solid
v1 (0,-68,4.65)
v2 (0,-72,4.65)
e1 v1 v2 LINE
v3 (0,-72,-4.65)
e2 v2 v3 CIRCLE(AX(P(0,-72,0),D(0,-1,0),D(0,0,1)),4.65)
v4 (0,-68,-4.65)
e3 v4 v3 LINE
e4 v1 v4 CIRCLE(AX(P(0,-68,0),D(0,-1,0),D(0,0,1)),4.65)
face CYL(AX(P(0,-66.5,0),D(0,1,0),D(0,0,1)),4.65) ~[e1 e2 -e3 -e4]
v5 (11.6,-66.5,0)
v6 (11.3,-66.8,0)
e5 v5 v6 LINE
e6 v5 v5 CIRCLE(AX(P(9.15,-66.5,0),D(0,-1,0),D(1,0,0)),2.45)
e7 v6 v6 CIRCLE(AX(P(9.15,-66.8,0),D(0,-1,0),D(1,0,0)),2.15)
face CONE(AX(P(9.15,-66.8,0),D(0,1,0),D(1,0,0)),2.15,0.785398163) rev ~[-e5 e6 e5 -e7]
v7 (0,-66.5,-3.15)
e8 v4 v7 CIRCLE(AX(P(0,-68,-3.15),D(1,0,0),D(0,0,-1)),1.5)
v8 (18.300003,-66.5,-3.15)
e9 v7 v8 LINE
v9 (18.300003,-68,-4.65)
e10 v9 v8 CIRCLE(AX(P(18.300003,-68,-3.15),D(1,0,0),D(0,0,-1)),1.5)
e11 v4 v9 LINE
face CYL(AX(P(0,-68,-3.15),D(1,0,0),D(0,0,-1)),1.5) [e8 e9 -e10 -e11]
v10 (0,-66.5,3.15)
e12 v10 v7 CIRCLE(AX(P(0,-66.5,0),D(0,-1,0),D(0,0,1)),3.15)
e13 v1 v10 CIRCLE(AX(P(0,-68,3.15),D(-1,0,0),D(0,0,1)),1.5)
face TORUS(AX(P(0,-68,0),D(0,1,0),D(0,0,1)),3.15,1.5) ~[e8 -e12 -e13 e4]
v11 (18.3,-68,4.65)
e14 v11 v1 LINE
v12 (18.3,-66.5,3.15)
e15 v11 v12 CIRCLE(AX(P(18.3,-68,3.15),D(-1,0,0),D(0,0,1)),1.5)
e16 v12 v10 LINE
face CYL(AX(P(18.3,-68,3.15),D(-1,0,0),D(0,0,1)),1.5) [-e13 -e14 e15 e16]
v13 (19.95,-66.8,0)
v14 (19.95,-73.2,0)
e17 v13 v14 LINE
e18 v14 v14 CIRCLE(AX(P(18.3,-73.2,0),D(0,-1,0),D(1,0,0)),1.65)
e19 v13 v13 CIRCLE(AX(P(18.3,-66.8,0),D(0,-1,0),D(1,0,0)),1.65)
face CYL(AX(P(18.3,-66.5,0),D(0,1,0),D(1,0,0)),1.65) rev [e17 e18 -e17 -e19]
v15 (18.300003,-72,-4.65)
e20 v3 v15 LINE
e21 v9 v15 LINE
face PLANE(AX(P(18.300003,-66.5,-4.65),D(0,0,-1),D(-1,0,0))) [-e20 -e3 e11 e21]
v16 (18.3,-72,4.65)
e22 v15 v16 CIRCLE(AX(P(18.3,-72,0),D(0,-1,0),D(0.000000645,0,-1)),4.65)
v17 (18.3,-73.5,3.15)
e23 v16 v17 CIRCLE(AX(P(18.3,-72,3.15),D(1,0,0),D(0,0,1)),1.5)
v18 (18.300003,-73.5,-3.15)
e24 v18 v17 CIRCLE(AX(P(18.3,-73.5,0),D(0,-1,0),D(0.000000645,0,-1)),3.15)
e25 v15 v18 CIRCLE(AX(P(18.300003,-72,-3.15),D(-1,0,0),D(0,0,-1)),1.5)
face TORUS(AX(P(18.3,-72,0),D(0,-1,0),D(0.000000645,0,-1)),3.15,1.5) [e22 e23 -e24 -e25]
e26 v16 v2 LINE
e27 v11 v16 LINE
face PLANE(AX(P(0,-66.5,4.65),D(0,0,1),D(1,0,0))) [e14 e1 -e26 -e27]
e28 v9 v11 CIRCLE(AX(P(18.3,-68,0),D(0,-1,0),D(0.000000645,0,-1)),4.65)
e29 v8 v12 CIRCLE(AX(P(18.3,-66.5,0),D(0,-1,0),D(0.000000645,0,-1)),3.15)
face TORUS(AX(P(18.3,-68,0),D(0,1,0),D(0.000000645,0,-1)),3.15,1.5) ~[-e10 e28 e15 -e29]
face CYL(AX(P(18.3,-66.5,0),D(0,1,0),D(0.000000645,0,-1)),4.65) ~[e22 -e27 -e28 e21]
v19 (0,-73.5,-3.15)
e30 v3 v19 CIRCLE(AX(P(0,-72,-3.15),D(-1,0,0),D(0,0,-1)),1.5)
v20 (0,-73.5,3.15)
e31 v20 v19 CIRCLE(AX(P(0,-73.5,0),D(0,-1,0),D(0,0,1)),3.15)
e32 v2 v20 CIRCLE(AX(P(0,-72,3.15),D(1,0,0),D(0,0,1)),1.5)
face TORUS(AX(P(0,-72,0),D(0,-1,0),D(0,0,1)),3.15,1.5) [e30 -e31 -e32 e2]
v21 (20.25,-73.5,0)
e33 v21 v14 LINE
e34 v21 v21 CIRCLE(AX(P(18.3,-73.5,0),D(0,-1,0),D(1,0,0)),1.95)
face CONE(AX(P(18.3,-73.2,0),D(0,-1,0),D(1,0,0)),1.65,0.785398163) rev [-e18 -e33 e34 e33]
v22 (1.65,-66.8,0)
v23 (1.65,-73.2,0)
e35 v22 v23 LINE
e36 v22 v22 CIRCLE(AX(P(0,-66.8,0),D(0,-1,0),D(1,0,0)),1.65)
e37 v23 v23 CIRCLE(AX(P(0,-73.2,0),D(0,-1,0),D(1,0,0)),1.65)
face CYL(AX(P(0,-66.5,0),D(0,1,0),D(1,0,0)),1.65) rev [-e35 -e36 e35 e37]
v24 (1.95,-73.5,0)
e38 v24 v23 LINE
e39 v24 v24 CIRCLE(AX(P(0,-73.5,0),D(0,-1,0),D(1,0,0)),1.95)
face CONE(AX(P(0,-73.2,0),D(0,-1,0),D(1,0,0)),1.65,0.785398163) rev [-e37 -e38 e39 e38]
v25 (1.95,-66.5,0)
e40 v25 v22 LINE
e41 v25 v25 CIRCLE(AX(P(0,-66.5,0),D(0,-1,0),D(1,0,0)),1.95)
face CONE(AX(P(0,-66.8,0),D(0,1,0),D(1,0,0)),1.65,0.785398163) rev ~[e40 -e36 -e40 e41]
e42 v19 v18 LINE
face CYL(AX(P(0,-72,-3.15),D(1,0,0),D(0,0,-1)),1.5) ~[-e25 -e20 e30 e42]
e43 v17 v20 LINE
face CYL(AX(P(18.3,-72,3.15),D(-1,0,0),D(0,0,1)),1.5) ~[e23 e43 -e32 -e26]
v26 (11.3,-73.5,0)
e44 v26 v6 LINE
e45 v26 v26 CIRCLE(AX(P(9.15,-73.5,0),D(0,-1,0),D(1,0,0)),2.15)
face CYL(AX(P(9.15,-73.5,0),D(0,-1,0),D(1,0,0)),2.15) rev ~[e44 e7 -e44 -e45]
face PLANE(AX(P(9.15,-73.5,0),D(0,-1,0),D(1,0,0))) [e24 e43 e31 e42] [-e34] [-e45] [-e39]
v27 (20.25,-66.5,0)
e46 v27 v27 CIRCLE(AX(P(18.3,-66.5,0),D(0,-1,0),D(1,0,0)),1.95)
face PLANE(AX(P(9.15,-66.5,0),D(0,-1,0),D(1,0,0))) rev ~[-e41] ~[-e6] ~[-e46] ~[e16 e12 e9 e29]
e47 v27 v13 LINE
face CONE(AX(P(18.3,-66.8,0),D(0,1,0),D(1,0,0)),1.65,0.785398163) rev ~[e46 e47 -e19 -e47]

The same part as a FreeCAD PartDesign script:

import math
import FreeCAD as App
import Part
import Sketcher

V = App.Vector
Q = App.Units.Quantity


def edges_at(feature, points):
    """Names of the edges that pass closest to the given points."""
    edges = feature.Shape.Edges
    near = lambda p: min(range(len(edges)), key=lambda i: edges[i].distToShape(Part.Vertex(*p))[0])
    return sorted({f"Edge{near(p) + 1}" for p in points})

doc = App.newDocument("Part")
body = doc.addObject("PartDesign::Body", "Body")

# Sketch on XZ plane
sketch1 = body.newObject("Sketcher::SketchObject", "Sketch")
sketch1.AttachmentSupport = (doc.getObject("XZ_Plane"), [""])
sketch1.MapMode = "FlatFace"
sketch1.addGeometry([
    Part.ArcOfCircle(Part.Circle(V(0, 0, 0), V(0, 0, 1), 4.7), math.radians(90), math.radians(270)),  # 0
    Part.LineSegment(V(0, -4.7, 0), V(18.3, -4.7, 0)),  # 1
    Part.ArcOfCircle(Part.Circle(V(18.3, 0, 0), V(0, 0, 1), 4.7), math.radians(-90), math.radians(90)),  # 2
    Part.LineSegment(V(18.3, 4.7, 0), V(0, 4.7, 0)),  # 3
    Part.Circle(V(0, 0, 0), V(0, 0, 1), 1.6),  # 4
    Part.Circle(V(18.3, 0, 0), V(0, 0, 1), 1.6),  # 5
], False)
sketch1.addConstraint([
    Sketcher.Constraint("Tangent", 0, 2, 1, 1),
    Sketcher.Constraint("Tangent", 1, 2, 2, 1),
    Sketcher.Constraint("Tangent", 2, 2, 3, 1),
    Sketcher.Constraint("Tangent", 3, 2, 0, 1),
    Sketcher.Constraint("Horizontal", 1),
    Sketcher.Constraint("Horizontal", 3),
    Sketcher.Constraint("Coincident", 0, 3, -1, 1),
    Sketcher.Constraint("Coincident", 4, 3, -1, 1),
    Sketcher.Constraint("Coincident", 5, 3, 2, 3),
    Sketcher.Constraint("Equal", 4, 5),
    Sketcher.Constraint("Diameter", 4, Q("3.3 mm")),
    Sketcher.Constraint("Radius", 0, Q("4.65 mm")),
    Sketcher.Constraint("DistanceX", 3, 2, 3, 1, Q("18.3 mm")),
])
pad1 = body.newObject("PartDesign::Pad", "Pad")
pad1.Profile = sketch1
pad1.Length = 7

# Sketch on XZ plane
sketch2 = body.newObject("Sketcher::SketchObject", "Sketch001")
sketch2.AttachmentSupport = (doc.getObject("XZ_Plane"), [""])
sketch2.MapMode = "FlatFace"
sketch2.AttachmentOffset = App.Placement(V(0, 0, 7), App.Rotation())
sketch2.addGeometry(Part.Circle(V(9.2, 0, 0), V(0, 0, 1), 2.1), False)
sketch2.addConstraint([
    Sketcher.Constraint("PointOnObject", 0, 3, -1),
    Sketcher.Constraint("Diameter", 0, Q("4.3 mm")),
    Sketcher.Constraint("DistanceX", -1, 1, 0, 3, Q("9.15 mm")),
])
pocket1 = body.newObject("PartDesign::Pocket", "Pocket")
pocket1.Profile = sketch2
pocket1.Length = 8
doc.recompute()

fillet = body.newObject("PartDesign::Fillet", "Fillet")
fillet.Base = (pocket1, edges_at(pocket1, [(-4.65, -7, 0), (-4.65, 0, 0)]))
fillet.Radius = 1.5
doc.recompute()

chamfer = body.newObject("PartDesign::Chamfer", "Chamfer")
chamfer.Base = (fillet, edges_at(fillet, [
    (-1.65, -7, 0),
    (16.65, -7, 0),
    (7, 0, 0),
    (-1.65, 0, 0),
    (16.65, 0, 0),
]))
chamfer.Size = 0.3
body2 = doc.addObject("PartDesign::Body", "Body001")
doc.recompute()

body.Placement = App.Placement(V(0, -66.5, 0), App.Rotation(V(0, 0, 1), 0))
boolean = body2.newObject("PartDesign::Boolean", "Boolean")
boolean.Type = "Fuse"
boolean.addObjects([body])

doc.recompute()
